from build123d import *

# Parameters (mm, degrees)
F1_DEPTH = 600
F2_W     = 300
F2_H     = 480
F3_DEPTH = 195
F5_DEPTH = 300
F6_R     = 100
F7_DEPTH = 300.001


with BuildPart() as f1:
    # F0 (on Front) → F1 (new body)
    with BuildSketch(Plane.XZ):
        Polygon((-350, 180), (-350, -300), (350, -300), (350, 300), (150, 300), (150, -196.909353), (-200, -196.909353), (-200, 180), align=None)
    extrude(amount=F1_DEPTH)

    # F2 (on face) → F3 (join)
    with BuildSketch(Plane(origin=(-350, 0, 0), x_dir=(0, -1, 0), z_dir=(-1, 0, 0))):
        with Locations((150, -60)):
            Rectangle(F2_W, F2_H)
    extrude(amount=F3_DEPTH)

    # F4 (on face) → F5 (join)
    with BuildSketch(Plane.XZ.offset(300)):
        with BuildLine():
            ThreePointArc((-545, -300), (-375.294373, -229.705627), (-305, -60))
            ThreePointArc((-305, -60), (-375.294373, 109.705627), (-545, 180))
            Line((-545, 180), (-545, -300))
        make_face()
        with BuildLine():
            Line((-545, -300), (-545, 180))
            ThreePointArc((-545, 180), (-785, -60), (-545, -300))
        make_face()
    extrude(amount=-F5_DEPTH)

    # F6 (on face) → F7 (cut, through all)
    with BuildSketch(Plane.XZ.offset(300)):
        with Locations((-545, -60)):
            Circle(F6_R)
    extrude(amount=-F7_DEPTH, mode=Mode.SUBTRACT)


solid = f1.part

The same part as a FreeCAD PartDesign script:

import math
import FreeCAD as App
import Part
import Sketcher
from FreeCAD import Vector
Q = App.Units.Quantity

doc = App.newDocument("Part")
body = doc.addObject("PartDesign::Body", "Body")

sketch1 = doc.addObject("Sketcher::SketchObject", "Sketch")
body.addObject(sketch1)
sketch1.AttachmentSupport = (doc.XZ_Plane, [""])
sketch1.MapMode = "FlatFace"
sketch1.addGeometry(Part.LineSegment(Vector(-350, 180, 0), Vector(-350, -300, 0)), False)
sketch1.addGeometry(Part.LineSegment(Vector(-350, -300, 0), Vector(350, -300, 0)), False)
sketch1.addGeometry(Part.LineSegment(Vector(350, -300, 0), Vector(350, 300, 0)), False)
sketch1.addGeometry(Part.LineSegment(Vector(350, 300, 0), Vector(150, 300, 0)), False)
sketch1.addGeometry(Part.LineSegment(Vector(150, 300, 0), Vector(150, -197, 0)), False)
sketch1.addGeometry(Part.LineSegment(Vector(150, -197, 0), Vector(-200, -197, 0)), False)
sketch1.addGeometry(Part.LineSegment(Vector(-200, -197, 0), Vector(-200, 180, 0)), False)
sketch1.addGeometry(Part.LineSegment(Vector(-200, 180, 0), Vector(-350, 180, 0)), False)
sketch1.addConstraint(Sketcher.Constraint("Coincident", 0, 2, 1, 1))
sketch1.addConstraint(Sketcher.Constraint("Coincident", 1, 2, 2, 1))
sketch1.addConstraint(Sketcher.Constraint("Coincident", 2, 2, 3, 1))
sketch1.addConstraint(Sketcher.Constraint("Coincident", 3, 2, 4, 1))
sketch1.addConstraint(Sketcher.Constraint("Coincident", 4, 2, 5, 1))
sketch1.addConstraint(Sketcher.Constraint("Coincident", 5, 2, 6, 1))
sketch1.addConstraint(Sketcher.Constraint("Coincident", 6, 2, 7, 1))
sketch1.addConstraint(Sketcher.Constraint("Coincident", 7, 2, 0, 1))
sketch1.addConstraint(Sketcher.Constraint("Vertical", 0))
sketch1.addConstraint(Sketcher.Constraint("Horizontal", 1))
sketch1.addConstraint(Sketcher.Constraint("Vertical", 2))
sketch1.addConstraint(Sketcher.Constraint("Horizontal", 3))
sketch1.addConstraint(Sketcher.Constraint("Vertical", 4))
sketch1.addConstraint(Sketcher.Constraint("Horizontal", 5))
sketch1.addConstraint(Sketcher.Constraint("Vertical", 6))
sketch1.addConstraint(Sketcher.Constraint("Horizontal", 7))
sketch1.addConstraint(Sketcher.Constraint("Symmetric", 0, 2, 2, 2, -1, 1))
sketch1.addConstraint(Sketcher.Constraint("DistanceX", 1, 1, 1, 2, Q("700 mm")))
sketch1.addConstraint(Sketcher.Constraint("DistanceX", 3, 2, 3, 1, Q("200 mm")))
sketch1.addConstraint(Sketcher.Constraint("DistanceX", 5, 2, 5, 1, Q("350 mm")))
sketch1.addConstraint(Sketcher.Constraint("DistanceY", 0, 2, 0, 1, Q("480 mm")))
sketch1.addConstraint(Sketcher.Constraint("DistanceY", 2, 1, 2, 2, Q("600 mm")))
sketch1.addConstraint(Sketcher.Constraint("DistanceY", 4, 2, 4, 1, Q("496.909353 mm")))
pad1 = doc.addObject("PartDesign::Pad", "Pad")
body.addObject(pad1)
pad1.Profile = sketch1
pad1.Length = 600

sketch2 = doc.addObject("Sketcher::SketchObject", "Sketch001")
body.addObject(sketch2)
sketch2.AttachmentSupport = (doc.YZ_Plane, [""])
sketch2.MapMode = "FlatFace"
sketch2.AttachmentOffset = App.Placement(Vector(0, 0, -350), App.Rotation())
sketch2.addGeometry(Part.LineSegment(Vector(0, 180, 0), Vector(0, -300, 0)), False)
sketch2.addGeometry(Part.LineSegment(Vector(0, -300, 0), Vector(-300, -300, 0)), False)
sketch2.addGeometry(Part.LineSegment(Vector(-300, -300, 0), Vector(-300, 180, 0)), False)
sketch2.addGeometry(Part.LineSegment(Vector(-300, 180, 0), Vector(0, 180, 0)), False)
sketch2.addConstraint(Sketcher.Constraint("Coincident", 0, 2, 1, 1))
sketch2.addConstraint(Sketcher.Constraint("Coincident", 1, 2, 2, 1))
sketch2.addConstraint(Sketcher.Constraint("Coincident", 2, 2, 3, 1))
sketch2.addConstraint(Sketcher.Constraint("Coincident", 3, 2, 0, 1))
sketch2.addConstraint(Sketcher.Constraint("Vertical", 0))
sketch2.addConstraint(Sketcher.Constraint("Horizontal", 1))
sketch2.addConstraint(Sketcher.Constraint("Vertical", 2))
sketch2.addConstraint(Sketcher.Constraint("Horizontal", 3))
sketch2.addConstraint(Sketcher.Constraint("PointOnObject", 0, 2, -2))
sketch2.addConstraint(Sketcher.Constraint("DistanceX", 1, 2, 1, 1, Q("300 mm")))
sketch2.addConstraint(Sketcher.Constraint("DistanceY", 0, 2, 0, 1, Q("480 mm")))
sketch2.addConstraint(Sketcher.Constraint("DistanceY", 0, 2, -1, 1, Q("300 mm")))
pad2 = doc.addObject("PartDesign::Pad", "Pad001")
body.addObject(pad2)
pad2.Profile = sketch2
pad2.Length = 195
pad2.Reversed = True

sketch3 = doc.addObject("Sketcher::SketchObject", "Sketch002")
body.addObject(sketch3)
sketch3.AttachmentSupport = (doc.XZ_Plane, [""])
sketch3.MapMode = "FlatFace"
sketch3.AttachmentOffset = App.Placement(Vector(0, 0, 300), App.Rotation())
sketch3.addGeometry(Part.ArcOfCircle(Part.Circle(Vector(-545, -60, 0), Vector(0, 0, 1), 240), math.radians(-90), math.radians(0)), False)
sketch3.addGeometry(Part.ArcOfCircle(Part.Circle(Vector(-545, -60, 0), Vector(0, 0, 1), 240), math.radians(0), math.radians(90)), False)
sketch3.addGeometry(Part.ArcOfCircle(Part.Circle(Vector(-545, -60, 0), Vector(0, 0, 1), 240), math.radians(90), math.radians(270)), False)
sketch3.addConstraint(Sketcher.Constraint("Tangent", 0, 2, 1, 1))
sketch3.addConstraint(Sketcher.Constraint("Tangent", 1, 2, 2, 1))
sketch3.addConstraint(Sketcher.Constraint("Tangent", 2, 2, 0, 1))
sketch3.addConstraint(Sketcher.Constraint("Horizontal", 2, 3, 0, 2))
sketch3.addConstraint(Sketcher.Constraint("Vertical", 2, 3, 1, 2))
sketch3.addConstraint(Sketcher.Constraint("Vertical", 1, 2, 2, 2))
sketch3.addConstraint(Sketcher.Constraint("Radius", 0, Q("240.000002 mm")))
sketch3.addConstraint(Sketcher.Constraint("DistanceX", 0, 3, -1, 1, Q("545.000002 mm")))
sketch3.addConstraint(Sketcher.Constraint("DistanceY", 0, 3, -1, 1, Q("59.999998 mm")))
pad3 = doc.addObject("PartDesign::Pad", "Pad002")
body.addObject(pad3)
pad3.Profile = sketch3
pad3.Length = 300
pad3.Reversed = True

sketch4 = doc.addObject("Sketcher::SketchObject", "Sketch003")
body.addObject(sketch4)
sketch4.AttachmentSupport = (doc.XZ_Plane, [""])
sketch4.MapMode = "FlatFace"
sketch4.AttachmentOffset = App.Placement(Vector(0, 0, 300), App.Rotation())
sketch4.addGeometry(Part.Circle(Vector(-545, -60, 0), Vector(0, 0, 1), 100), False)
sketch4.addConstraint(Sketcher.Constraint("Diameter", 0, Q("200 mm")))
sketch4.addConstraint(Sketcher.Constraint("DistanceX", 0, 3, -1, 1, Q("545 mm")))
sketch4.addConstraint(Sketcher.Constraint("DistanceY", 0, 3, -1, 1, Q("60 mm")))
pocket1 = doc.addObject("PartDesign::Pocket", "Pocket")
body.addObject(pocket1)
pocket1.Profile = sketch4
pocket1.Type = "ThroughAll"

doc.recompute()
